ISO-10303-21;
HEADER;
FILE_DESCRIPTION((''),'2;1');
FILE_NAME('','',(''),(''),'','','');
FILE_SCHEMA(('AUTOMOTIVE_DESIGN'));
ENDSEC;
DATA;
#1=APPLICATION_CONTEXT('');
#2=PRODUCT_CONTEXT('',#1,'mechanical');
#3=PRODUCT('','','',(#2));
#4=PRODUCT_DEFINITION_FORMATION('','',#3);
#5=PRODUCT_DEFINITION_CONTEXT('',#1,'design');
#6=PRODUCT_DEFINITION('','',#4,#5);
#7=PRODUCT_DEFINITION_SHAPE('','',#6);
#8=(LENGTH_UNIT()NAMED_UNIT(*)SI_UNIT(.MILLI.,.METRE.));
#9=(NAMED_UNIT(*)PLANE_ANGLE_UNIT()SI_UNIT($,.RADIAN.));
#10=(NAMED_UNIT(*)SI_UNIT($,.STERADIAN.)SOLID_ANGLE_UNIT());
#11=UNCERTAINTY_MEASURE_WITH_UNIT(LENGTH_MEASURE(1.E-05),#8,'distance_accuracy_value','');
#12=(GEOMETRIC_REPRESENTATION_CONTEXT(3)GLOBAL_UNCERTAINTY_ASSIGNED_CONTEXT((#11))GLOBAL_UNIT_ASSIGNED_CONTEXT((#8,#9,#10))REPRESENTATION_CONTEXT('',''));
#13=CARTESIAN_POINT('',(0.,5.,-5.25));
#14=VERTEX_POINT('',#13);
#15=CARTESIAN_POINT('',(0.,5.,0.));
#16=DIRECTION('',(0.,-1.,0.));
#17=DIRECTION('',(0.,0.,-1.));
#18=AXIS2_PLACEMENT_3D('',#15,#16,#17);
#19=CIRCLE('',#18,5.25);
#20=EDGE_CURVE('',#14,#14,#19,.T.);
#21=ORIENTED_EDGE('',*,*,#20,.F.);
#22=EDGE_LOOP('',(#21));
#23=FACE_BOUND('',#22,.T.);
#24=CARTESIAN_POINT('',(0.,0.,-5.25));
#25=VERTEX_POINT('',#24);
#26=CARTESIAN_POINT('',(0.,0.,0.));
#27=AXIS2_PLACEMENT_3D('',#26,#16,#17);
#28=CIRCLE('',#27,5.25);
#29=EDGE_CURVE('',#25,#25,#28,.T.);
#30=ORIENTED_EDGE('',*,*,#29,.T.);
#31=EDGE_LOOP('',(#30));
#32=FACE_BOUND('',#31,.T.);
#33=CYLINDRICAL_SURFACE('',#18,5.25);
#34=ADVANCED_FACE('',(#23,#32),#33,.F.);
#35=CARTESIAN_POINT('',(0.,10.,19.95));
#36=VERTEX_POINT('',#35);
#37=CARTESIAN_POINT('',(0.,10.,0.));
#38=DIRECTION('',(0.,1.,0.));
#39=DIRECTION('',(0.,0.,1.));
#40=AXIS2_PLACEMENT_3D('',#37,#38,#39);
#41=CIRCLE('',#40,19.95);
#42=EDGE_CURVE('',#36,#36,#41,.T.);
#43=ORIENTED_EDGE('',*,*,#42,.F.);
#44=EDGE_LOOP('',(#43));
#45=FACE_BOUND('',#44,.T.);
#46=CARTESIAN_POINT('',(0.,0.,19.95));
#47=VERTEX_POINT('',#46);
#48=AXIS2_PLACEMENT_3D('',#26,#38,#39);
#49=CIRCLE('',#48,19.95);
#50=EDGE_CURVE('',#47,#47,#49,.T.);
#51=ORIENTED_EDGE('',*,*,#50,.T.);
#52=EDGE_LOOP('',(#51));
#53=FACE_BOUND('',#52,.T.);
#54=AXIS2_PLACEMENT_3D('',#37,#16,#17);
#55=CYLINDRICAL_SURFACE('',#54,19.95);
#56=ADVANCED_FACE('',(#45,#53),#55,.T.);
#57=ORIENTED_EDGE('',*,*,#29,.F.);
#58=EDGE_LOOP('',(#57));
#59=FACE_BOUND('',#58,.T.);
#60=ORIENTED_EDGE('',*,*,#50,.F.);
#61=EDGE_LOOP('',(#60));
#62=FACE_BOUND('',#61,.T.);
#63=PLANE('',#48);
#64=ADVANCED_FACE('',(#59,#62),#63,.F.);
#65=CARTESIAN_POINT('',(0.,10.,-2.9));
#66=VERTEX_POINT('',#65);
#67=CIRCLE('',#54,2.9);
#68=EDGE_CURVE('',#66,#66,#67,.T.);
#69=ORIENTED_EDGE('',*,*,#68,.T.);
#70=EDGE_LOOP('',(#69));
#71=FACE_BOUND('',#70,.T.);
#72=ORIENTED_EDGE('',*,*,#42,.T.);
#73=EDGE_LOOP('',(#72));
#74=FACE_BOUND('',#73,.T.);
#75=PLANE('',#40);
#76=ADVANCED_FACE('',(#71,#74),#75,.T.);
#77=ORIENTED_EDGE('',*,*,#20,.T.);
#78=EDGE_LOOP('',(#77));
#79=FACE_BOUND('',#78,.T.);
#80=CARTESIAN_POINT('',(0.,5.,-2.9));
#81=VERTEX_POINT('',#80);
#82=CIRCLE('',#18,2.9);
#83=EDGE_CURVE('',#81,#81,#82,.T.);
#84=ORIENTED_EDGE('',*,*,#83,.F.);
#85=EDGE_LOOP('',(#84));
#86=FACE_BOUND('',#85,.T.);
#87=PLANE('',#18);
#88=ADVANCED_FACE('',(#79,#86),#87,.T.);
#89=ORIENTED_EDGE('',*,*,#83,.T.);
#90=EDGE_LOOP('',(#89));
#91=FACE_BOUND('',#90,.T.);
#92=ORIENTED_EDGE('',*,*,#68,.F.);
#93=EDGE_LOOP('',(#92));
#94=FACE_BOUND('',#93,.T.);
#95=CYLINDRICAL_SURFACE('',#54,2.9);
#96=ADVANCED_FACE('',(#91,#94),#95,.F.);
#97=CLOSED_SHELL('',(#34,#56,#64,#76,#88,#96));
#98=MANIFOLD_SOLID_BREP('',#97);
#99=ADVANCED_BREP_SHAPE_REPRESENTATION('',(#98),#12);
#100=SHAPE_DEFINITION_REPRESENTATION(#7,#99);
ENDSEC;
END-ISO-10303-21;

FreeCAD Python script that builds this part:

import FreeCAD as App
import Part
import Sketcher
Q = App.Units.Quantity

doc = App.newDocument("Part")
body = doc.addObject("PartDesign::Body", "Body")

sketch1 = body.newObject("Sketcher::SketchObject", "Sketch")
sketch1.AttachmentSupport = (doc.getObject("XZ_Plane"), [""])
sketch1.MapMode = "FlatFace"
sketch1.addGeometry(Part.Circle(App.Vector(0, 0, 0), App.Vector(0, 0, 1), 20), False)
sketch1.addConstraint(Sketcher.Constraint("Coincident", 0, 3, -1, 1))
sketch1.addConstraint(Sketcher.Constraint("Diameter", 0, Q("39.9 mm")))
pad1 = body.newObject("PartDesign::Pad", "Pad")
pad1.Profile = sketch1
pad1.Length = 10
pad1.Reversed = True

sketch2 = body.newObject("Sketcher::SketchObject", "Sketch001")
sketch2.AttachmentSupport = (doc.getObject("XZ_Plane"), [""])
sketch2.MapMode = "FlatFace"
sketch2.addGeometry(Part.Circle(App.Vector(0, 0, 0), App.Vector(0, 0, 1), 5), False)
sketch2.addConstraint(Sketcher.Constraint("Coincident", 0, 3, -1, 1))
sketch2.addConstraint(Sketcher.Constraint("Diameter", 0, Q("10.5 mm")))
pocket1 = body.newObject("PartDesign::Pocket", "Pocket")
pocket1.Profile = sketch2
pocket1.Length = 5

sketch3 = body.newObject("Sketcher::SketchObject", "Sketch002")
sketch3.AttachmentSupport = (doc.getObject("XZ_Plane"), [""])
sketch3.MapMode = "FlatFace"
sketch3.AttachmentOffset = App.Placement(App.Vector(0, 0, -5), App.Rotation())
sketch3.addGeometry(Part.Circle(App.Vector(0, 0, 0), App.Vector(0, 0, 1), 2.9), False)
sketch3.addConstraint(Sketcher.Constraint("Coincident", 0, 3, -1, 1))
sketch3.addConstraint(Sketcher.Constraint("Diameter", 0, Q("5.8 mm")))
pocket2 = body.newObject("PartDesign::Pocket", "Pocket001")
pocket2.Profile = sketch3
pocket2.Length = 5

doc.recompute()
